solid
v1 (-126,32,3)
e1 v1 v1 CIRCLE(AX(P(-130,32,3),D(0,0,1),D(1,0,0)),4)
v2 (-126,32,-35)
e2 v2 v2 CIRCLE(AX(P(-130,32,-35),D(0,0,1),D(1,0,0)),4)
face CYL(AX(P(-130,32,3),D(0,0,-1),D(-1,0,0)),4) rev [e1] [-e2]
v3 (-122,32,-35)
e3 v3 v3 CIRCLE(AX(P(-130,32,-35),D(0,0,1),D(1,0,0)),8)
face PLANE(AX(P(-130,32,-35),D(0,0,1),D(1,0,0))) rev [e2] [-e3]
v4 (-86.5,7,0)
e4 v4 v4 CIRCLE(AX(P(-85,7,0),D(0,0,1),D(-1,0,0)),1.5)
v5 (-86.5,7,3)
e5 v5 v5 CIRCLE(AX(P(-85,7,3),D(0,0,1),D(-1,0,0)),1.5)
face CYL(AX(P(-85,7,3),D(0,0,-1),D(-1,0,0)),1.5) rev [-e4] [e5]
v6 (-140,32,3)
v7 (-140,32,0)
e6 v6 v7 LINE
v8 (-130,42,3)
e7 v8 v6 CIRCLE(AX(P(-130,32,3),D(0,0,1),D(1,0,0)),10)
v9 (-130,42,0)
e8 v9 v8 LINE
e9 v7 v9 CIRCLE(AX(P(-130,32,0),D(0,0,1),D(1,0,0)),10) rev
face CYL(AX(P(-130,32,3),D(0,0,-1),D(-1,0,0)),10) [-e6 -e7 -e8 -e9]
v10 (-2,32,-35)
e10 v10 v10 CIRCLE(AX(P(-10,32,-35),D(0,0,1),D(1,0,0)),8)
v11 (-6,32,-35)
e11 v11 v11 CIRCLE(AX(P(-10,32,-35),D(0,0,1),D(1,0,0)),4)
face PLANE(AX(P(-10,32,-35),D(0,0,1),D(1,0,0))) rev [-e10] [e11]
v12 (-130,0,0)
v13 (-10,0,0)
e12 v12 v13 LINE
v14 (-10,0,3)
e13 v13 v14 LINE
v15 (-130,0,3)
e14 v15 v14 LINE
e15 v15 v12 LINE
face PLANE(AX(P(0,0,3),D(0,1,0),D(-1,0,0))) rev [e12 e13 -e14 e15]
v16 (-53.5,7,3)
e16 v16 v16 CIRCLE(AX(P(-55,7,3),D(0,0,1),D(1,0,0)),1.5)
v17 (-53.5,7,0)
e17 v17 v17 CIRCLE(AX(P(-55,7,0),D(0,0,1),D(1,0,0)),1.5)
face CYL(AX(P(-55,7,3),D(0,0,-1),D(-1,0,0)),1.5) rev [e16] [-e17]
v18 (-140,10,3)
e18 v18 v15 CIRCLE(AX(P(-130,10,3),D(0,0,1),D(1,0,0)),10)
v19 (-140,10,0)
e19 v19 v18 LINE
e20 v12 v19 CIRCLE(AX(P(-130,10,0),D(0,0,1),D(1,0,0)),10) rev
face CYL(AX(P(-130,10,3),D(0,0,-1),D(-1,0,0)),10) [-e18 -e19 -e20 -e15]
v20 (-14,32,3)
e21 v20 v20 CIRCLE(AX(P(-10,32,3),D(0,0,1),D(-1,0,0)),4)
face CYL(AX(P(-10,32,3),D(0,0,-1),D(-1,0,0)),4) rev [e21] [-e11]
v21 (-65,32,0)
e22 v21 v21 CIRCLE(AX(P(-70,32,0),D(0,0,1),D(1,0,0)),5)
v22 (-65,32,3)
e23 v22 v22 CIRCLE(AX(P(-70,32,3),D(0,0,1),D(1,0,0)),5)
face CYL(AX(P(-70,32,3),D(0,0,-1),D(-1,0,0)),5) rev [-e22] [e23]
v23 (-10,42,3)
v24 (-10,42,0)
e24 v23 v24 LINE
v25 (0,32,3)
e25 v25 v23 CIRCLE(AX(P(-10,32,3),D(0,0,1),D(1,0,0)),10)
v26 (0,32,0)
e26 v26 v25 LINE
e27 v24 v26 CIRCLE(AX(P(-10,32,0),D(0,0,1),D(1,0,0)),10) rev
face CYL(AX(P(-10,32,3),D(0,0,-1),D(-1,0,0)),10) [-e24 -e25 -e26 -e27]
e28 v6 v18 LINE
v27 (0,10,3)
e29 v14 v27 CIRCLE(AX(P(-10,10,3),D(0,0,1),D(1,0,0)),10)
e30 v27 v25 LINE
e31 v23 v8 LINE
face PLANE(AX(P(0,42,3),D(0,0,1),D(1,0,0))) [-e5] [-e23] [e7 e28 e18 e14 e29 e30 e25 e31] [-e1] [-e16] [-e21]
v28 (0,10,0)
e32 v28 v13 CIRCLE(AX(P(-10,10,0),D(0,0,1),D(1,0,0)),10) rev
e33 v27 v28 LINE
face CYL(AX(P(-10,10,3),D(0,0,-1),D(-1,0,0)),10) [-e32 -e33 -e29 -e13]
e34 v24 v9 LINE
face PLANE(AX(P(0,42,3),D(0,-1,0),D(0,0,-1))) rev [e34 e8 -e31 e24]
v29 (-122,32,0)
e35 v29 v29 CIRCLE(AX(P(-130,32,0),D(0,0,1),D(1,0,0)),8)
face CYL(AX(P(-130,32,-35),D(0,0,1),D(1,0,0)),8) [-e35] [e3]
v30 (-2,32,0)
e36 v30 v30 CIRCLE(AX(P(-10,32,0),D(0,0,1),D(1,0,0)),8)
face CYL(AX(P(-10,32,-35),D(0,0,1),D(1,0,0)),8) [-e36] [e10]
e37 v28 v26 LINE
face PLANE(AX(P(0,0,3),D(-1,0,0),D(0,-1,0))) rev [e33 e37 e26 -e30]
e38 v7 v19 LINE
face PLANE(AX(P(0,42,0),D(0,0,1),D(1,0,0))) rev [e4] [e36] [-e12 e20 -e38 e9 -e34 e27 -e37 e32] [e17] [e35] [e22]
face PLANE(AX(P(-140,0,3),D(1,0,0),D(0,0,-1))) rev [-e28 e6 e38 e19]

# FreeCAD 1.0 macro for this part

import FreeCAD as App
import Part
import Sketcher

V = App.Vector
Q = App.Units.Quantity


def edges_at(feature, points):
    """Names of the edges that pass closest to the given points."""
    edges = feature.Shape.Edges
    near = lambda p: min(range(len(edges)), key=lambda i: edges[i].distToShape(Part.Vertex(*p))[0])
    return sorted({f"Edge{near(p) + 1}" for p in points})


def add_polygon(sketch, points):
    """Adds a closed chain of lines whose ends are joined by coincident constraints."""
    first, n = sketch.GeometryCount, len(points)
    for a, b in zip(points, points[1:] + points[:1]):
        sketch.addGeometry(Part.LineSegment(App.Vector(*a, 0), App.Vector(*b, 0)), False)
    for i in range(n):
        sketch.addConstraint(Sketcher.Constraint("Coincident", first + i, 2, first + (i + 1) % n, 1))

doc = App.newDocument("Part")
params = doc.addObject("Spreadsheet::Sheet", "Params")
for row, (alias, value) in enumerate([
    ("sketch1_diameter", "3 mm"),
    ("sketch1_diameter2", "8 mm"),
    ("sketch1_diameter3", "10 mm"),
    ("sketch1_width", "140 mm"),
    ("sketch1_height", "42 mm"),
    ("pad1_length", "3 mm"),
    ("fillet_radius", "10 mm"),
    ("fillet2_radius", "10 mm"),
    ("sketch2_diameter", "16 mm"),
    ("sketch2_diameter2", "8 mm"),
    ("pad2_length", "38 mm"),
], start=1):
    params.set(f"A{row}", alias)
    params.set(f"B{row}", "=" + value)
    params.setAlias(f"B{row}", alias)

body = doc.addObject("PartDesign::Body", "Body")

sketch1 = body.newObject("Sketcher::SketchObject", "Sketch")
sketch1.AttachmentSupport = (doc.getObject("XY_Plane"), [""])
sketch1.MapMode = "FlatFace"
add_polygon(sketch1, [(-140, 42), (-140, 0), (0, 0), (0, 42)])
sketch1.addGeometry(Part.Circle(V(-85, 7, 0), V(0, 0, 1), 1.5), False)
sketch1.addGeometry(Part.Circle(V(-55, 7, 0), V(0, 0, 1), 1.5), False)
sketch1.addGeometry(Part.Circle(V(-130, 32, 0), V(0, 0, 1), 4), False)
sketch1.addGeometry(Part.Circle(V(-70, 32, 0), V(0, 0, 1), 5), False)
sketch1.addGeometry(Part.Circle(V(-10, 32, 0), V(0, 0, 1), 4), False)
sketch1.addConstraint(Sketcher.Constraint("Vertical", 0))
sketch1.addConstraint(Sketcher.Constraint("Horizontal", 1))
sketch1.addConstraint(Sketcher.Constraint("Vertical", 2))
sketch1.addConstraint(Sketcher.Constraint("Horizontal", 3))
sketch1.addConstraint(Sketcher.Constraint("Coincident", 1, 2, -1, 1))
sketch1.addConstraint(Sketcher.Constraint("Equal", 4, 5))
sketch1.addConstraint(Sketcher.Constraint("Equal", 6, 8))
sketch1.addConstraint(Sketcher.Constraint("Horizontal", 4, 3, 5, 3))
sketch1.addConstraint(Sketcher.Constraint("Horizontal", 6, 3, 7, 3))
sketch1.addConstraint(Sketcher.Constraint("Horizontal", 7, 3, 8, 3))
sketch1.addConstraint(Sketcher.Constraint("Diameter", 4, Q("3 mm")))
sketch1.addConstraint(Sketcher.Constraint("Diameter", 6, Q("8 mm")))
sketch1.addConstraint(Sketcher.Constraint("Diameter", 7, Q("10 mm")))
sketch1.addConstraint(Sketcher.Constraint("DistanceX", 1, 1, 1, 2, Q("140 mm")))
sketch1.addConstraint(Sketcher.Constraint("DistanceY", 0, 2, 0, 1, Q("42 mm")))
sketch1.addConstraint(Sketcher.Constraint("DistanceX", 4, 3, -1, 1, Q("85 mm")))
sketch1.addConstraint(Sketcher.Constraint("DistanceY", -1, 1, 4, 3, Q("7 mm")))
sketch1.addConstraint(Sketcher.Constraint("DistanceX", 5, 3, -1, 1, Q("55 mm")))
sketch1.addConstraint(Sketcher.Constraint("DistanceX", 6, 3, -1, 1, Q("130 mm")))
sketch1.addConstraint(Sketcher.Constraint("DistanceY", -1, 1, 6, 3, Q("32 mm")))
sketch1.addConstraint(Sketcher.Constraint("DistanceX", 7, 3, -1, 1, Q("70 mm")))
sketch1.addConstraint(Sketcher.Constraint("DistanceX", 8, 3, -1, 1, Q("10 mm")))
sketch1.setExpression("Constraints[14]", "Params.sketch1_diameter")
sketch1.setExpression("Constraints[15]", "Params.sketch1_diameter2")
sketch1.setExpression("Constraints[16]", "Params.sketch1_diameter3")
sketch1.setExpression("Constraints[17]", "Params.sketch1_width")
sketch1.setExpression("Constraints[18]", "Params.sketch1_height")
pad1 = body.newObject("PartDesign::Pad", "Pad")
pad1.Profile = sketch1
pad1.setExpression("Length", "Params.pad1_length")
doc.recompute()

fillet = body.newObject("PartDesign::Fillet", "Fillet")
fillet.Base = (pad1, edges_at(pad1, [(-140, 42, 1.5), (0, 42, 1.5)]))
fillet.setExpression("Radius", "Params.fillet_radius")
doc.recompute()

fillet2 = body.newObject("PartDesign::Fillet", "Fillet001")
fillet2.Base = (fillet, edges_at(fillet, [(0, 0, 1.5), (-140, 0, 1.5)]))
fillet2.setExpression("Radius", "Params.fillet2_radius")

sketch2 = body.newObject("Sketcher::SketchObject", "Sketch001")
sketch2.AttachmentSupport = (doc.getObject("XY_Plane"), [""])
sketch2.MapMode = "FlatFace"
sketch2.AttachmentOffset = App.Placement(V(0, 0, 3), App.Rotation())
sketch2.addGeometry(Part.Circle(V(-10, 32, 0), V(0, 0, 1), 8), False)
sketch2.addGeometry(Part.Circle(V(-10, 32, 0), V(0, 0, 1), 4), False)
sketch2.addGeometry(Part.Circle(V(-130, 32, 0), V(0, 0, 1), 8), False)
sketch2.addGeometry(Part.Circle(V(-130, 32, 0), V(0, 0, 1), 4), False)
sketch2.addConstraint(Sketcher.Constraint("Coincident", 1, 3, 0, 3))
sketch2.addConstraint(Sketcher.Constraint("Coincident", 3, 3, 2, 3))
sketch2.addConstraint(Sketcher.Constraint("Equal", 0, 2))
sketch2.addConstraint(Sketcher.Constraint("Equal", 1, 3))
sketch2.addConstraint(Sketcher.Constraint("Horizontal", 1, 3, 2, 3))
sketch2.addConstraint(Sketcher.Constraint("Diameter", 0, Q("16 mm")))
sketch2.addConstraint(Sketcher.Constraint("Diameter", 1, Q("8 mm")))
sketch2.addConstraint(Sketcher.Constraint("DistanceX", 0, 3, -1, 1, Q("10 mm")))
sketch2.addConstraint(Sketcher.Constraint("DistanceY", -1, 1, 0, 3, Q("32 mm")))
sketch2.addConstraint(Sketcher.Constraint("DistanceX", 2, 3, -1, 1, Q("130 mm")))
sketch2.setExpression("Constraints[5]", "Params.sketch2_diameter")
sketch2.setExpression("Constraints[6]", "Params.sketch2_diameter2")
pad2 = body.newObject("PartDesign::Pad", "Pad001")
pad2.Profile = sketch2
pad2.setExpression("Length", "Params.pad2_length")
pad2.Reversed = True

doc.recompute()
